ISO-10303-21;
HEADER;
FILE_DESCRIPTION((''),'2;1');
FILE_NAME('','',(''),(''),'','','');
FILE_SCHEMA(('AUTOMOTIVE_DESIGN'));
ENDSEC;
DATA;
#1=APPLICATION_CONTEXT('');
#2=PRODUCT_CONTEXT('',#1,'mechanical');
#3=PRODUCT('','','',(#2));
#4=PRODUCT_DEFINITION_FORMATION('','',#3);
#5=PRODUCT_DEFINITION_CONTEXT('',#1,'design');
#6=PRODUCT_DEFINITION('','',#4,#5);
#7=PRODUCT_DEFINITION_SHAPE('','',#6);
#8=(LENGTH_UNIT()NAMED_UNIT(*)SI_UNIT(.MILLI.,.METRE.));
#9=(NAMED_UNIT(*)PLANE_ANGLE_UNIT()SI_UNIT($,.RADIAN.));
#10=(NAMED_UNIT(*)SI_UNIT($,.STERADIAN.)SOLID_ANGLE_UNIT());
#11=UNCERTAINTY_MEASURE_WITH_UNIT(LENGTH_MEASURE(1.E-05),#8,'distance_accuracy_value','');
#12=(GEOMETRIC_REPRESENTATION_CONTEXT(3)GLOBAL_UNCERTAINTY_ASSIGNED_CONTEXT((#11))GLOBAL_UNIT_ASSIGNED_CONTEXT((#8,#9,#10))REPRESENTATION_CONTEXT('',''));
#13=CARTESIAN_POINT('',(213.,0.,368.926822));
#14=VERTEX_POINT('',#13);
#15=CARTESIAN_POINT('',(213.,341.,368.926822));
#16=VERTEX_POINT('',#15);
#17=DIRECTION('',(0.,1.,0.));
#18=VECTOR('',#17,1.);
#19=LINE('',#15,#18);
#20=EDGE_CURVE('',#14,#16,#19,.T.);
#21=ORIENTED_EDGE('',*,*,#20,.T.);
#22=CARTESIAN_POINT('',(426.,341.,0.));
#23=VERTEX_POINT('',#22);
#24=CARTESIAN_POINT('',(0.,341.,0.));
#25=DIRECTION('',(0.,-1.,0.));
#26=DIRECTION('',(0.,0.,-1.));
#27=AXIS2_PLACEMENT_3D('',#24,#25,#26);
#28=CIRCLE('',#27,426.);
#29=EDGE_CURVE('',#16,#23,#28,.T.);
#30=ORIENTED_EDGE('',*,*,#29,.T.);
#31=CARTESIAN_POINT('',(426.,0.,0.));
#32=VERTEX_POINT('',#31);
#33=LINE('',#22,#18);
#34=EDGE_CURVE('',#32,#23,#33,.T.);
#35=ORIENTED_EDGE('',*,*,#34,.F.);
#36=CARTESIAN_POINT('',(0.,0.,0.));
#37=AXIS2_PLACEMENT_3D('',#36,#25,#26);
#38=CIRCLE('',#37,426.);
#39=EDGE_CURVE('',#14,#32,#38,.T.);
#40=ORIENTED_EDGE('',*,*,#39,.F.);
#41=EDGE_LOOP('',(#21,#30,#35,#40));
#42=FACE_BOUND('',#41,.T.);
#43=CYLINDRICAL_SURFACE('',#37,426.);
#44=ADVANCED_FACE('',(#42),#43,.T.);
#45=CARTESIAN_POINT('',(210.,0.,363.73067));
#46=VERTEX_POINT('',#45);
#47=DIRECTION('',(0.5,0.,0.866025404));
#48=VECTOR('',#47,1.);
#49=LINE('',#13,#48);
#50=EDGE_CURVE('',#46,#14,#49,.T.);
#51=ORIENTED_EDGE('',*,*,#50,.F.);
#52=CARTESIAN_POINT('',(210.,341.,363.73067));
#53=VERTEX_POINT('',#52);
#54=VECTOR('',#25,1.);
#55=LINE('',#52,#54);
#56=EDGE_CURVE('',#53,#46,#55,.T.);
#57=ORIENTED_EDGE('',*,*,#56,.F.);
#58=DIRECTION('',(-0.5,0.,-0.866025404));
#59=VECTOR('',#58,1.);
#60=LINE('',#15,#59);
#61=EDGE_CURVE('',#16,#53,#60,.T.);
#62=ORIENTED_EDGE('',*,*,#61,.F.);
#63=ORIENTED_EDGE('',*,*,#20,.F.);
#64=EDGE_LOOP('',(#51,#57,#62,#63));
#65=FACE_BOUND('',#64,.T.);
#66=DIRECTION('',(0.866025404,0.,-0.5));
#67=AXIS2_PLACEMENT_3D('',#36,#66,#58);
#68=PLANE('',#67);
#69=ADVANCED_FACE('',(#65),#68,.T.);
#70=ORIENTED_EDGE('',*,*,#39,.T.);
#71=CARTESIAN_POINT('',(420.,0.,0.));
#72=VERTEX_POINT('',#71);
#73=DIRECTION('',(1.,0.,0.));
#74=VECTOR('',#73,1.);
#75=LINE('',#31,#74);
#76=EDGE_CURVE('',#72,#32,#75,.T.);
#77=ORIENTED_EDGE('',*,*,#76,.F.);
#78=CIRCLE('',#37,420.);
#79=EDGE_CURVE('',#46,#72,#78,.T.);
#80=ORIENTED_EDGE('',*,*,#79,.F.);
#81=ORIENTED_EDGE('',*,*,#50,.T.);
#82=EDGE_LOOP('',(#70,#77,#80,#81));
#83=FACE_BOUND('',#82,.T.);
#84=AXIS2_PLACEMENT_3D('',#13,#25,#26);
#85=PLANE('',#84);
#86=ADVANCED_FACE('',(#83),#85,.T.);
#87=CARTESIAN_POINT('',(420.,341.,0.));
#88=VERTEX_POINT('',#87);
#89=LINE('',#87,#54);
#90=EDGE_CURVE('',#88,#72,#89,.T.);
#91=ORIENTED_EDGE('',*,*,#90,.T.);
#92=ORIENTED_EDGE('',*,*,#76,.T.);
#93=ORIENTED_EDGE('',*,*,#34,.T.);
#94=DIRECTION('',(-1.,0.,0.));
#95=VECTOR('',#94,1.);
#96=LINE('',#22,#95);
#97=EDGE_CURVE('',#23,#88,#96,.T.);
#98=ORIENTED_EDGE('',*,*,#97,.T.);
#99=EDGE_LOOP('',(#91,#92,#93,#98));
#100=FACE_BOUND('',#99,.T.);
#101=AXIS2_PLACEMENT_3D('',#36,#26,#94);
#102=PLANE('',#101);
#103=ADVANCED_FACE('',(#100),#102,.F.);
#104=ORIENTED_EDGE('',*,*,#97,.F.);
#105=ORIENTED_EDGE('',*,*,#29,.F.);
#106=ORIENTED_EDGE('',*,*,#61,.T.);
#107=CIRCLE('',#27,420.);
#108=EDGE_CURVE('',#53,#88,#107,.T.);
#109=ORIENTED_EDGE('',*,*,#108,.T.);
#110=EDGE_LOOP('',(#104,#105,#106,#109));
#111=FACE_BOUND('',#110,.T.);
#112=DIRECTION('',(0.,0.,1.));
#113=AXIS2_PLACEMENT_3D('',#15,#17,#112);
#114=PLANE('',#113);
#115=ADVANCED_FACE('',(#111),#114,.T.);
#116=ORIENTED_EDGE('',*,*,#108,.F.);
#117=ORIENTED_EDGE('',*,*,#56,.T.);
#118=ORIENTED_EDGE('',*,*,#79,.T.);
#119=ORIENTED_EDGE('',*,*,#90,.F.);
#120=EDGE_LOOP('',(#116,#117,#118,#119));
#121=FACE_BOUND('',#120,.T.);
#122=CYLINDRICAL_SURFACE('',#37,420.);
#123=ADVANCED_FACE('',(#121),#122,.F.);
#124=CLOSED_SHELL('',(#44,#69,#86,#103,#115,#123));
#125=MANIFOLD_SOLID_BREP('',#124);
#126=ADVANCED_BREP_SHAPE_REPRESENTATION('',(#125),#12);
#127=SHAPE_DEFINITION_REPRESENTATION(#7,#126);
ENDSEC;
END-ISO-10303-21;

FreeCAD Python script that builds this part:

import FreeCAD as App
import Part
import Sketcher
from FreeCAD import Vector


def add_polygon(sketch, points):
    """Adds a closed chain of lines whose ends are joined by coincident constraints."""
    first, n = sketch.GeometryCount, len(points)
    for a, b in zip(points, points[1:] + points[:1]):
        sketch.addGeometry(Part.LineSegment(App.Vector(*a, 0), App.Vector(*b, 0)), False)
    for i in range(n):
        sketch.addConstraint(Sketcher.Constraint("Coincident", first + i, 2, first + (i + 1) % n, 1))

doc = App.newDocument("Part")
body = doc.addObject("PartDesign::Body", "Body")

# Sketch on XY plane
sketch1 = body.newObject("Sketcher::SketchObject", "Sketch")
sketch1.AttachmentSupport = (doc.getObject("XY_Plane"), [""])
sketch1.MapMode = "FlatFace"
add_polygon(sketch1, [(420, 341), (420, 0), (426, 0), (426, 341)])  # lines 0-3
sketch1.addConstraint(Sketcher.Constraint("Vertical", 0))
sketch1.addConstraint(Sketcher.Constraint("Horizontal", 1))
sketch1.addConstraint(Sketcher.Constraint("Vertical", 2))
sketch1.addConstraint(Sketcher.Constraint("Horizontal", 3))
sketch1.addConstraint(Sketcher.Constraint("PointOnObject", 0, 2, -1))
sketch1.addConstraint(Sketcher.Constraint("DistanceX", 1, 1, 1, 2, 6.0))
sketch1.addConstraint(Sketcher.Constraint("DistanceY", 0, 2, 0, 1, 341.0))
sketch1.addConstraint(Sketcher.Constraint("DistanceX", -1, 1, 0, 2, 420.0))
revolution = body.newObject("PartDesign::Revolution", "Revolution")
revolution.Profile = sketch1
revolution.ReferenceAxis = (sketch1, ["V_Axis"])
revolution.Angle = 300

doc.recompute()
